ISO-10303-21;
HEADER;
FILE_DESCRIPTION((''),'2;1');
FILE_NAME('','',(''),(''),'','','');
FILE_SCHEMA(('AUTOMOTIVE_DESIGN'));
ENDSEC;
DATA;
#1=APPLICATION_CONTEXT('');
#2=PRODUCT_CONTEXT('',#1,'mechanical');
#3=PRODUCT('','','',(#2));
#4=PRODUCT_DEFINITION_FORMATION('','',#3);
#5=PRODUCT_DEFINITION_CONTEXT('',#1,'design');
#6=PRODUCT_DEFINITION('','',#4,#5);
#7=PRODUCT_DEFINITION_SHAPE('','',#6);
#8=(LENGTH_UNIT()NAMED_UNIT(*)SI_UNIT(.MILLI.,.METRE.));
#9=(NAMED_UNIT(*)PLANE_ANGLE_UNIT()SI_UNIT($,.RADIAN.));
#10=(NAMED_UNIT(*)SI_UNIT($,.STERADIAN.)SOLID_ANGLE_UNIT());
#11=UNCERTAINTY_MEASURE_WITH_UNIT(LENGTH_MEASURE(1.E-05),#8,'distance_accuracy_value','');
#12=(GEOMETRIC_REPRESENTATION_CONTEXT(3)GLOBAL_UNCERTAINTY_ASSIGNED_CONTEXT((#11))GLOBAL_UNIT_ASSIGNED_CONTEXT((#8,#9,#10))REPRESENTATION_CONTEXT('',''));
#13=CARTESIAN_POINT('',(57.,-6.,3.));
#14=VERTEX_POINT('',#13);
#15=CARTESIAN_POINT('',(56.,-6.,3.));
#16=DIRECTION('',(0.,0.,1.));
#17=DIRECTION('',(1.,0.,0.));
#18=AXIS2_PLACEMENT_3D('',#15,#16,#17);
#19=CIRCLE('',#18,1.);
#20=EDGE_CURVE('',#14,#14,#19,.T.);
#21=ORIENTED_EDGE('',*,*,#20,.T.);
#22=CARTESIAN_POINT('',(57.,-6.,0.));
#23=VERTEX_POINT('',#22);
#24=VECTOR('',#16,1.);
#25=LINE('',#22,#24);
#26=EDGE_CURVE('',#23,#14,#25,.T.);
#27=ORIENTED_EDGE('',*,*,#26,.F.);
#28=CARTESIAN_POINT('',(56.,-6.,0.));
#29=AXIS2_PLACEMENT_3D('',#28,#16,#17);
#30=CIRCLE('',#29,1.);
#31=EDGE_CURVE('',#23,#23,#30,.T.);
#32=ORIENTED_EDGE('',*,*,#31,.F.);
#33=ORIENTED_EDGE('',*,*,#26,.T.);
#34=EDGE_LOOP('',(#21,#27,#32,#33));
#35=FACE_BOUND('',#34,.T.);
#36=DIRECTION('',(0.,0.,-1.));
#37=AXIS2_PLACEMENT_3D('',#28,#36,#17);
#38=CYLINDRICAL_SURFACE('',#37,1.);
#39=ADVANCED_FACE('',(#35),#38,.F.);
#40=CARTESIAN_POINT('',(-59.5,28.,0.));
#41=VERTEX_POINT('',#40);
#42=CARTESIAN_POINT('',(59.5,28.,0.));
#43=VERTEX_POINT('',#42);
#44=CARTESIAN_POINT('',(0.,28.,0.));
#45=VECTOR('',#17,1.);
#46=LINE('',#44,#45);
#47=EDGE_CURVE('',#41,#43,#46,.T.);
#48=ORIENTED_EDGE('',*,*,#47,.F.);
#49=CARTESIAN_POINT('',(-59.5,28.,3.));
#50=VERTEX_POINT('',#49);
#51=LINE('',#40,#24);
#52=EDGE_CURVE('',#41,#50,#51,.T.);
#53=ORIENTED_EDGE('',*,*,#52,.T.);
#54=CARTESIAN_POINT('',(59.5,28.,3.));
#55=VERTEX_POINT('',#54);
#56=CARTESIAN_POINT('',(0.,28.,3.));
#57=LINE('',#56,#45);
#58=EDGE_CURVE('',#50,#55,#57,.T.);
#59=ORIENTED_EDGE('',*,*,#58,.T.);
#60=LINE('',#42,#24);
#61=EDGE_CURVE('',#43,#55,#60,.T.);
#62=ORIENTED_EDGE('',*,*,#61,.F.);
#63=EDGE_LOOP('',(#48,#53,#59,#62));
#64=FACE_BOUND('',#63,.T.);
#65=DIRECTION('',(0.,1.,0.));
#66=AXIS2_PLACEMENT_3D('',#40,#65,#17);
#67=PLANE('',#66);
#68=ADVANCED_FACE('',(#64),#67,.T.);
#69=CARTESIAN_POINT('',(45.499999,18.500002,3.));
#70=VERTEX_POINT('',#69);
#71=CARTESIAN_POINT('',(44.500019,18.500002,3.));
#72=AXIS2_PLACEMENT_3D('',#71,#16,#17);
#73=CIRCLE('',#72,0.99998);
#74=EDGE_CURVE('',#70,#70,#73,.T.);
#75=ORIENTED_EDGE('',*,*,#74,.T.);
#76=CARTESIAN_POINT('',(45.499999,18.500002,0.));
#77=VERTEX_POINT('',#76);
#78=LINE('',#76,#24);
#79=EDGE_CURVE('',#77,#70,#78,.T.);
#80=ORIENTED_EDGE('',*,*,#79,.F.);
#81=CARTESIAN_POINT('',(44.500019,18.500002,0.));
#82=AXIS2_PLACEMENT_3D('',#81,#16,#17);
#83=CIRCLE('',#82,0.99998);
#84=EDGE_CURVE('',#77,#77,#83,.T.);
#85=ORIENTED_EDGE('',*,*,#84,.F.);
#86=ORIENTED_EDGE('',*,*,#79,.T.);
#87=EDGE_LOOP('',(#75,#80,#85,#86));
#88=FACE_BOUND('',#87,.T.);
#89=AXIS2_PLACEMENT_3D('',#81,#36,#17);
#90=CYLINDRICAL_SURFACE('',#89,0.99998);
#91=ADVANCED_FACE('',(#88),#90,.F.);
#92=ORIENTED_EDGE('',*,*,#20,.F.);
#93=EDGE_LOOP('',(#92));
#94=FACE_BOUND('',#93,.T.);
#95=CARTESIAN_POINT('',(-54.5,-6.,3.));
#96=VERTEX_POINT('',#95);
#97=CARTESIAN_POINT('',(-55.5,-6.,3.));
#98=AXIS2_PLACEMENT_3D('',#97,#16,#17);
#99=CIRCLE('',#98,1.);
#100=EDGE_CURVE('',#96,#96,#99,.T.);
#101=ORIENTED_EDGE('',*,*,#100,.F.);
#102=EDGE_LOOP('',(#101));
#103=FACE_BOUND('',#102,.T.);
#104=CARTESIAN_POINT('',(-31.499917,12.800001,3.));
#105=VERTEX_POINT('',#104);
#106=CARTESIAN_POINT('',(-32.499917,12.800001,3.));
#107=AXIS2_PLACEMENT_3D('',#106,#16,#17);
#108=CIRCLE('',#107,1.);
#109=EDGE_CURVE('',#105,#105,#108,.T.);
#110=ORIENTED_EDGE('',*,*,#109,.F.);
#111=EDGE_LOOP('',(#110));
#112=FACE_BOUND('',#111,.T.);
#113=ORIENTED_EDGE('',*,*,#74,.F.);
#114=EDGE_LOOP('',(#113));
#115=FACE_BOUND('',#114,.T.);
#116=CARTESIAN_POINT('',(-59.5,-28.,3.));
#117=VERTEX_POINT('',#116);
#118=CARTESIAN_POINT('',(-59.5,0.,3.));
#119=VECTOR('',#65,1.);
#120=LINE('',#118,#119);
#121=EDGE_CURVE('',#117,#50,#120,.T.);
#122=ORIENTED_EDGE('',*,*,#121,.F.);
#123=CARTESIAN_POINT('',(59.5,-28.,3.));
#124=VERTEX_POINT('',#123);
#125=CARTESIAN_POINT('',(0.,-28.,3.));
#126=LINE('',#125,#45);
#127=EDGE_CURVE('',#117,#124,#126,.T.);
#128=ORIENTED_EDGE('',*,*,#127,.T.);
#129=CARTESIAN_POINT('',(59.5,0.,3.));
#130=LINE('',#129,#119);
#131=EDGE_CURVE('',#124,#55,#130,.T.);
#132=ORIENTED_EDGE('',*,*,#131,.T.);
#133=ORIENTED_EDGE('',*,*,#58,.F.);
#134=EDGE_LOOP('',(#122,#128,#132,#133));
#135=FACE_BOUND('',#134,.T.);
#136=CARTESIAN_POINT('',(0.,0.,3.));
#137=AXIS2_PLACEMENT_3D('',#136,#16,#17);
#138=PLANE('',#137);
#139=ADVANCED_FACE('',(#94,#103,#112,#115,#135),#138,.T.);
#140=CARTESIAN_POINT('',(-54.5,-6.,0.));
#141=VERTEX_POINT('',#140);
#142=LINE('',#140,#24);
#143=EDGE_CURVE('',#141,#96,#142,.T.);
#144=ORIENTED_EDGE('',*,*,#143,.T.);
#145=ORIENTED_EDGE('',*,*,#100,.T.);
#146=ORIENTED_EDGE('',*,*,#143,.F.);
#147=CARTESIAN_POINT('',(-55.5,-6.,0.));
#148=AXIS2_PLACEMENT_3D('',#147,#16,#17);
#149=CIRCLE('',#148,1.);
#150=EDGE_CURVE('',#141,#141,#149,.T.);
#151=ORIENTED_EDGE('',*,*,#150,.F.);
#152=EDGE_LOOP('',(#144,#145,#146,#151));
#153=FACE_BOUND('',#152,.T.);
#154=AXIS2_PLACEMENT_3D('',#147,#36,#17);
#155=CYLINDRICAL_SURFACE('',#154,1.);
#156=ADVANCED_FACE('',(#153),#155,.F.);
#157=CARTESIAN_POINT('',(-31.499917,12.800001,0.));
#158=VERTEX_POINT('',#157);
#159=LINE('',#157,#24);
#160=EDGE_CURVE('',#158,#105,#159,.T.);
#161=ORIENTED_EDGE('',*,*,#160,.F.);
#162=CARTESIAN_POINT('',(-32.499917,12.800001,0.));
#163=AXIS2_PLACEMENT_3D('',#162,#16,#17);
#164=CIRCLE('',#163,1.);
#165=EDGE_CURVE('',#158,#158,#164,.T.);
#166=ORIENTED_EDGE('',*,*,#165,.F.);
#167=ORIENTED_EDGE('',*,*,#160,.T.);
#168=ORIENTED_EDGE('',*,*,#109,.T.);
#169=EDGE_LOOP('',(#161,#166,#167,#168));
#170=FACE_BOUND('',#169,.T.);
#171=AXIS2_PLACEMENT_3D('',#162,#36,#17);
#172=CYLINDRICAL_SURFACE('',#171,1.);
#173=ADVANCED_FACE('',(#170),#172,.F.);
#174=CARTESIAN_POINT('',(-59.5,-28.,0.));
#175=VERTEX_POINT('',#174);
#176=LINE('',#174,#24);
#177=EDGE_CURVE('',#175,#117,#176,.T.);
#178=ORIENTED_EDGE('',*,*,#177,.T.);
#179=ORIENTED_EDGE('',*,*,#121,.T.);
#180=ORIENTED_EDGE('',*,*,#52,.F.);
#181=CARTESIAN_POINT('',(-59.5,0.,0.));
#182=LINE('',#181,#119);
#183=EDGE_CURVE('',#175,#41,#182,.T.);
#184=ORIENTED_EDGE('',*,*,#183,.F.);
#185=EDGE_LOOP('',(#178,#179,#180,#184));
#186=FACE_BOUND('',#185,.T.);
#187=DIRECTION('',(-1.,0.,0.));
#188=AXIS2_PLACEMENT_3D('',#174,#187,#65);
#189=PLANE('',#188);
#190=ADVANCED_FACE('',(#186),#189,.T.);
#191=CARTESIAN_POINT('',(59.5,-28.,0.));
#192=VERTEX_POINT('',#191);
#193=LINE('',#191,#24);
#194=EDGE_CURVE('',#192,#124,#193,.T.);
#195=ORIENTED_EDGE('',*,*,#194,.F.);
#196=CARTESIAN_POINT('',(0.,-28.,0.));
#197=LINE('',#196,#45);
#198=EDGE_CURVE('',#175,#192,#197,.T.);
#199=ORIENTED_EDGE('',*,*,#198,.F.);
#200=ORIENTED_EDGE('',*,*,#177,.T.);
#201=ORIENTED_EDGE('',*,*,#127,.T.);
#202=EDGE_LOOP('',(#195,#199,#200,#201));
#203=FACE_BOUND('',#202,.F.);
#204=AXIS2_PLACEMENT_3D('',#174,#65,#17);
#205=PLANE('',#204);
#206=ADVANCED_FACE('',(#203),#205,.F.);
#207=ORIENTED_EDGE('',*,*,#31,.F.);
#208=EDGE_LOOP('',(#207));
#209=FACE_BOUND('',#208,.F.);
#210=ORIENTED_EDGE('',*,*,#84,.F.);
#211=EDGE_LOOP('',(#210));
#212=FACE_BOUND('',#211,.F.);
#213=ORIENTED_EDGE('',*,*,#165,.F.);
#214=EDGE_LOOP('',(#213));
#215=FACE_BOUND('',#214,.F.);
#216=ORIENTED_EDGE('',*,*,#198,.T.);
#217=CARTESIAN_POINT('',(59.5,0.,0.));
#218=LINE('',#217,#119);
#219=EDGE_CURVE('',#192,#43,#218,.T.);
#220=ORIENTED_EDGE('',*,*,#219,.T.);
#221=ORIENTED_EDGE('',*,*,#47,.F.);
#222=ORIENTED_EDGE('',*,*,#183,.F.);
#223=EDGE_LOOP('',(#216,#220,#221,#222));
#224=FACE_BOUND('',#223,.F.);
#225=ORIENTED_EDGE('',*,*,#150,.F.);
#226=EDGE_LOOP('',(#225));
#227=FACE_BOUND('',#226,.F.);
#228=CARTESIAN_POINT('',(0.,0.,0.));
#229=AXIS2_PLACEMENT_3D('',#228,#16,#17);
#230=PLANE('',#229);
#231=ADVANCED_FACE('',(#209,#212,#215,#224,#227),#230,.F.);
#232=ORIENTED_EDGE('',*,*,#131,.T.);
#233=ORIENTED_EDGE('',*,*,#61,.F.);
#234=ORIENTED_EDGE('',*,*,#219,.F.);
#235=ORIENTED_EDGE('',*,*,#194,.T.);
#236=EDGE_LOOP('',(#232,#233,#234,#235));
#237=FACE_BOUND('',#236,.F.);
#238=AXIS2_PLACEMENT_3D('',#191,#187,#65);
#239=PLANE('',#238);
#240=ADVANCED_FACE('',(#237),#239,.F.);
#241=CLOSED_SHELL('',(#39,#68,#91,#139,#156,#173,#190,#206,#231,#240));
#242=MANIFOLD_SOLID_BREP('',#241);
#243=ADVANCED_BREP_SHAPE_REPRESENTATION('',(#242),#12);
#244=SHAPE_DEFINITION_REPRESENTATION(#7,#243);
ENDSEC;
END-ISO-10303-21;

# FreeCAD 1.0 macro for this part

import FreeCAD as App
import Part
import Sketcher

V = App.Vector
Q = App.Units.Quantity


def add_polygon(sketch, points):
    """Adds a closed chain of lines whose ends are joined by coincident constraints."""
    first, n = sketch.GeometryCount, len(points)
    for a, b in zip(points, points[1:] + points[:1]):
        sketch.addGeometry(Part.LineSegment(App.Vector(*a, 0), App.Vector(*b, 0)), False)
    for i in range(n):
        sketch.addConstraint(Sketcher.Constraint("Coincident", first + i, 2, first + (i + 1) % n, 1))

doc = App.newDocument("Part")
body = doc.addObject("PartDesign::Body", "Body")

sketch1 = doc.addObject("Sketcher::SketchObject", "Sketch")
body.addObject(sketch1)
sketch1.AttachmentSupport = (doc.XY_Plane, [""])
sketch1.MapMode = "FlatFace"
add_polygon(sketch1, [(-59.5, 28), (-59.5, -28), (59.5, -28), (59.5, 28)])
sketch1.addGeometry(Part.Circle(V(-55.5, -6, 0), V(0, 0, 1), 1), False)
sketch1.addGeometry(Part.Circle(V(56, -6, 0), V(0, 0, 1), 1), False)
sketch1.addGeometry(Part.Circle(V(-32.5, 12.8, 0), V(0, 0, 1), 1), False)
sketch1.addGeometry(Part.Circle(V(44.5, 18.5, 0), V(0, 0, 1), 1), False)
sketch1.addConstraint([
    Sketcher.Constraint("Vertical", 0),
    Sketcher.Constraint("Horizontal", 1),
    Sketcher.Constraint("Vertical", 2),
    Sketcher.Constraint("Horizontal", 3),
    Sketcher.Constraint("Equal", 4, 5),
    Sketcher.Constraint("Equal", 5, 6),
    Sketcher.Constraint("Symmetric", 0, 2, 2, 2, -1, 1),
    Sketcher.Constraint("Horizontal", 4, 3, 5, 3),
    Sketcher.Constraint("Diameter", 4, Q("2 mm")),
    Sketcher.Constraint("DistanceX", 1, 1, 1, 2, Q("119 mm")),
    Sketcher.Constraint("DistanceY", 0, 2, 0, 1, Q("56 mm")),
    Sketcher.Constraint("DistanceY", 4, 3, -1, 1, Q("6 mm")),
    Sketcher.Constraint("DistanceX", -1, 1, 5, 3, Q("56 mm")),
    Sketcher.Constraint("DistanceX", 0, 2, 4, 3, Q("4 mm")),
    Sketcher.Constraint("DistanceY", -1, 1, 6, 3, Q("12.800001 mm")),
    Sketcher.Constraint("DistanceY", -1, 1, 7, 3, Q("18.500002 mm")),
    Sketcher.Constraint("Diameter", 7, Q("1.99996 mm")),
    Sketcher.Constraint("DistanceX", -1, 1, 7, 3, Q("44.500019 mm")),
    Sketcher.Constraint("DistanceX", 6, 3, -1, 1, Q("32.499917 mm")),
])
pad1 = doc.addObject("PartDesign::Pad", "Pad")
body.addObject(pad1)
pad1.Profile = sketch1
pad1.Length = 3

doc.recompute()
